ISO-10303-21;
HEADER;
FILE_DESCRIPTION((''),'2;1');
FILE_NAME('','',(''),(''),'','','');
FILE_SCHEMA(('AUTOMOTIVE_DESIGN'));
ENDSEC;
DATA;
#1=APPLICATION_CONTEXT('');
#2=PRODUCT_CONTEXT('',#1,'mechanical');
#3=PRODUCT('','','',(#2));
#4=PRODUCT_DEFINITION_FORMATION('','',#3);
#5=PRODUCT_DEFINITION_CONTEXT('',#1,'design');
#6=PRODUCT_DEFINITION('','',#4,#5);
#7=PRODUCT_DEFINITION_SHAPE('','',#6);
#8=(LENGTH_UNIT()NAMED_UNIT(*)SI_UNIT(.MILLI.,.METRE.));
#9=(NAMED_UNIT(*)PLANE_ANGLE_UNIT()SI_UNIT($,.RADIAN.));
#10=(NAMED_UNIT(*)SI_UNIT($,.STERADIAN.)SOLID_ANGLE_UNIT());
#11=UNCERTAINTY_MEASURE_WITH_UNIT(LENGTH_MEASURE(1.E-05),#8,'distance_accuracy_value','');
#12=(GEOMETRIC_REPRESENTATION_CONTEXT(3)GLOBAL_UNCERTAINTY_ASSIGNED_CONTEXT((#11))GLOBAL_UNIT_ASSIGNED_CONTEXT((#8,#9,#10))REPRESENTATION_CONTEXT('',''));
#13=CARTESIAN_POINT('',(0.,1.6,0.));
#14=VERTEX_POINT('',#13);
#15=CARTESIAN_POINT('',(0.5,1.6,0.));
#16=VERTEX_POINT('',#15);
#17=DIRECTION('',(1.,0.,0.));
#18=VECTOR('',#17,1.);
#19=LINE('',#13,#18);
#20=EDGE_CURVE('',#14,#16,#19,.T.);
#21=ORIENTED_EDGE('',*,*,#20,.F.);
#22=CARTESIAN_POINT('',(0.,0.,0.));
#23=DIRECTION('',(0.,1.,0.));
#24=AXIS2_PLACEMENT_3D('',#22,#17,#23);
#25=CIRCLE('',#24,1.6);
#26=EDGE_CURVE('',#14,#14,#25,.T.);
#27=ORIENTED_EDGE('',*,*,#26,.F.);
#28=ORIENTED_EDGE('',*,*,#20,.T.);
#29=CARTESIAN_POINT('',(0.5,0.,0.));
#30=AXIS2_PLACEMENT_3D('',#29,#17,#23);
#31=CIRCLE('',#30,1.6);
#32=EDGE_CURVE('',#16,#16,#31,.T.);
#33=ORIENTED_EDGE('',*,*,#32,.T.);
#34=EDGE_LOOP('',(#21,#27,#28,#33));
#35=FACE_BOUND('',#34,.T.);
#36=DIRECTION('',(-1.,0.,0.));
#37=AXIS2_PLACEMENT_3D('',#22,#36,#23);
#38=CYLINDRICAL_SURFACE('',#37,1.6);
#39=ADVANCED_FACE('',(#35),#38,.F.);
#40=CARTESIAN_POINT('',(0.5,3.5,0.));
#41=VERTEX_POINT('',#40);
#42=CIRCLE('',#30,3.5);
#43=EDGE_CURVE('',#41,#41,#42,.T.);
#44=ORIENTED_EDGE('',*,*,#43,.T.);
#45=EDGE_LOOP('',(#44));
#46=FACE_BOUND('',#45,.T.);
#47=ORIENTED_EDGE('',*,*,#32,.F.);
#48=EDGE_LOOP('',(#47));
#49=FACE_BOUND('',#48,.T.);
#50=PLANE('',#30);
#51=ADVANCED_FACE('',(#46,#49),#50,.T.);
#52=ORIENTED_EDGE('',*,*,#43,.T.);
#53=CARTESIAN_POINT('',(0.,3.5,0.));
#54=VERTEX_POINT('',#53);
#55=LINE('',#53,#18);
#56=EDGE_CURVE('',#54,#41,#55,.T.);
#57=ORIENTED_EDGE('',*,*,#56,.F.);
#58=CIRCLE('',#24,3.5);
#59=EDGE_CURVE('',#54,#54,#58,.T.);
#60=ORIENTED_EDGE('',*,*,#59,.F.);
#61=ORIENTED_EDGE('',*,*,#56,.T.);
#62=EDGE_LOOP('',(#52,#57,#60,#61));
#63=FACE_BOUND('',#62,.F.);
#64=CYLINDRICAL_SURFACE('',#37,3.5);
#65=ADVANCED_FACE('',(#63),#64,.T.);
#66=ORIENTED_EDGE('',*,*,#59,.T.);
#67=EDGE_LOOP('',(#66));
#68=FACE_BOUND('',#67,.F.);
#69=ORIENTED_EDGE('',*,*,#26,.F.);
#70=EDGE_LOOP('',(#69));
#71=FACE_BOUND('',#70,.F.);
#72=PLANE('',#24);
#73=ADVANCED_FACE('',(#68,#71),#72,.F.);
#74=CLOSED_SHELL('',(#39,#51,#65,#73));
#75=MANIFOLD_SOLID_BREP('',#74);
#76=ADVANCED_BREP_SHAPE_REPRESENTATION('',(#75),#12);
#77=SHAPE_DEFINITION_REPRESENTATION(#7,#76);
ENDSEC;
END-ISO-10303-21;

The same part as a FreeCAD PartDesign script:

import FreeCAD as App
import Part
import Sketcher

doc = App.newDocument("Part")
body = doc.addObject("PartDesign::Body", "Body")

# Sketch on YZ plane
sketch1 = body.newObject("Sketcher::SketchObject", "Sketch")
sketch1.AttachmentSupport = (doc.getObject("YZ_Plane"), [""])
sketch1.MapMode = "FlatFace"
sketch1.addGeometry([
    Part.Circle(App.Vector(0, 0, 0), App.Vector(0, 0, 1), 3.5),
    Part.Circle(App.Vector(0, 0, 0), App.Vector(0, 0, 1), 1.6),
], False)
sketch1.addConstraint([
    Sketcher.Constraint("Coincident", 0, 3, -1, 1),
    Sketcher.Constraint("Coincident", 1, 3, -1, 1),
    Sketcher.Constraint("Diameter", 0, 7.0),
    Sketcher.Constraint("Diameter", 1, 3.2),
])
pad1 = body.newObject("PartDesign::Pad", "Pad")
pad1.Profile = sketch1
pad1.Length = 0.5

doc.recompute()
